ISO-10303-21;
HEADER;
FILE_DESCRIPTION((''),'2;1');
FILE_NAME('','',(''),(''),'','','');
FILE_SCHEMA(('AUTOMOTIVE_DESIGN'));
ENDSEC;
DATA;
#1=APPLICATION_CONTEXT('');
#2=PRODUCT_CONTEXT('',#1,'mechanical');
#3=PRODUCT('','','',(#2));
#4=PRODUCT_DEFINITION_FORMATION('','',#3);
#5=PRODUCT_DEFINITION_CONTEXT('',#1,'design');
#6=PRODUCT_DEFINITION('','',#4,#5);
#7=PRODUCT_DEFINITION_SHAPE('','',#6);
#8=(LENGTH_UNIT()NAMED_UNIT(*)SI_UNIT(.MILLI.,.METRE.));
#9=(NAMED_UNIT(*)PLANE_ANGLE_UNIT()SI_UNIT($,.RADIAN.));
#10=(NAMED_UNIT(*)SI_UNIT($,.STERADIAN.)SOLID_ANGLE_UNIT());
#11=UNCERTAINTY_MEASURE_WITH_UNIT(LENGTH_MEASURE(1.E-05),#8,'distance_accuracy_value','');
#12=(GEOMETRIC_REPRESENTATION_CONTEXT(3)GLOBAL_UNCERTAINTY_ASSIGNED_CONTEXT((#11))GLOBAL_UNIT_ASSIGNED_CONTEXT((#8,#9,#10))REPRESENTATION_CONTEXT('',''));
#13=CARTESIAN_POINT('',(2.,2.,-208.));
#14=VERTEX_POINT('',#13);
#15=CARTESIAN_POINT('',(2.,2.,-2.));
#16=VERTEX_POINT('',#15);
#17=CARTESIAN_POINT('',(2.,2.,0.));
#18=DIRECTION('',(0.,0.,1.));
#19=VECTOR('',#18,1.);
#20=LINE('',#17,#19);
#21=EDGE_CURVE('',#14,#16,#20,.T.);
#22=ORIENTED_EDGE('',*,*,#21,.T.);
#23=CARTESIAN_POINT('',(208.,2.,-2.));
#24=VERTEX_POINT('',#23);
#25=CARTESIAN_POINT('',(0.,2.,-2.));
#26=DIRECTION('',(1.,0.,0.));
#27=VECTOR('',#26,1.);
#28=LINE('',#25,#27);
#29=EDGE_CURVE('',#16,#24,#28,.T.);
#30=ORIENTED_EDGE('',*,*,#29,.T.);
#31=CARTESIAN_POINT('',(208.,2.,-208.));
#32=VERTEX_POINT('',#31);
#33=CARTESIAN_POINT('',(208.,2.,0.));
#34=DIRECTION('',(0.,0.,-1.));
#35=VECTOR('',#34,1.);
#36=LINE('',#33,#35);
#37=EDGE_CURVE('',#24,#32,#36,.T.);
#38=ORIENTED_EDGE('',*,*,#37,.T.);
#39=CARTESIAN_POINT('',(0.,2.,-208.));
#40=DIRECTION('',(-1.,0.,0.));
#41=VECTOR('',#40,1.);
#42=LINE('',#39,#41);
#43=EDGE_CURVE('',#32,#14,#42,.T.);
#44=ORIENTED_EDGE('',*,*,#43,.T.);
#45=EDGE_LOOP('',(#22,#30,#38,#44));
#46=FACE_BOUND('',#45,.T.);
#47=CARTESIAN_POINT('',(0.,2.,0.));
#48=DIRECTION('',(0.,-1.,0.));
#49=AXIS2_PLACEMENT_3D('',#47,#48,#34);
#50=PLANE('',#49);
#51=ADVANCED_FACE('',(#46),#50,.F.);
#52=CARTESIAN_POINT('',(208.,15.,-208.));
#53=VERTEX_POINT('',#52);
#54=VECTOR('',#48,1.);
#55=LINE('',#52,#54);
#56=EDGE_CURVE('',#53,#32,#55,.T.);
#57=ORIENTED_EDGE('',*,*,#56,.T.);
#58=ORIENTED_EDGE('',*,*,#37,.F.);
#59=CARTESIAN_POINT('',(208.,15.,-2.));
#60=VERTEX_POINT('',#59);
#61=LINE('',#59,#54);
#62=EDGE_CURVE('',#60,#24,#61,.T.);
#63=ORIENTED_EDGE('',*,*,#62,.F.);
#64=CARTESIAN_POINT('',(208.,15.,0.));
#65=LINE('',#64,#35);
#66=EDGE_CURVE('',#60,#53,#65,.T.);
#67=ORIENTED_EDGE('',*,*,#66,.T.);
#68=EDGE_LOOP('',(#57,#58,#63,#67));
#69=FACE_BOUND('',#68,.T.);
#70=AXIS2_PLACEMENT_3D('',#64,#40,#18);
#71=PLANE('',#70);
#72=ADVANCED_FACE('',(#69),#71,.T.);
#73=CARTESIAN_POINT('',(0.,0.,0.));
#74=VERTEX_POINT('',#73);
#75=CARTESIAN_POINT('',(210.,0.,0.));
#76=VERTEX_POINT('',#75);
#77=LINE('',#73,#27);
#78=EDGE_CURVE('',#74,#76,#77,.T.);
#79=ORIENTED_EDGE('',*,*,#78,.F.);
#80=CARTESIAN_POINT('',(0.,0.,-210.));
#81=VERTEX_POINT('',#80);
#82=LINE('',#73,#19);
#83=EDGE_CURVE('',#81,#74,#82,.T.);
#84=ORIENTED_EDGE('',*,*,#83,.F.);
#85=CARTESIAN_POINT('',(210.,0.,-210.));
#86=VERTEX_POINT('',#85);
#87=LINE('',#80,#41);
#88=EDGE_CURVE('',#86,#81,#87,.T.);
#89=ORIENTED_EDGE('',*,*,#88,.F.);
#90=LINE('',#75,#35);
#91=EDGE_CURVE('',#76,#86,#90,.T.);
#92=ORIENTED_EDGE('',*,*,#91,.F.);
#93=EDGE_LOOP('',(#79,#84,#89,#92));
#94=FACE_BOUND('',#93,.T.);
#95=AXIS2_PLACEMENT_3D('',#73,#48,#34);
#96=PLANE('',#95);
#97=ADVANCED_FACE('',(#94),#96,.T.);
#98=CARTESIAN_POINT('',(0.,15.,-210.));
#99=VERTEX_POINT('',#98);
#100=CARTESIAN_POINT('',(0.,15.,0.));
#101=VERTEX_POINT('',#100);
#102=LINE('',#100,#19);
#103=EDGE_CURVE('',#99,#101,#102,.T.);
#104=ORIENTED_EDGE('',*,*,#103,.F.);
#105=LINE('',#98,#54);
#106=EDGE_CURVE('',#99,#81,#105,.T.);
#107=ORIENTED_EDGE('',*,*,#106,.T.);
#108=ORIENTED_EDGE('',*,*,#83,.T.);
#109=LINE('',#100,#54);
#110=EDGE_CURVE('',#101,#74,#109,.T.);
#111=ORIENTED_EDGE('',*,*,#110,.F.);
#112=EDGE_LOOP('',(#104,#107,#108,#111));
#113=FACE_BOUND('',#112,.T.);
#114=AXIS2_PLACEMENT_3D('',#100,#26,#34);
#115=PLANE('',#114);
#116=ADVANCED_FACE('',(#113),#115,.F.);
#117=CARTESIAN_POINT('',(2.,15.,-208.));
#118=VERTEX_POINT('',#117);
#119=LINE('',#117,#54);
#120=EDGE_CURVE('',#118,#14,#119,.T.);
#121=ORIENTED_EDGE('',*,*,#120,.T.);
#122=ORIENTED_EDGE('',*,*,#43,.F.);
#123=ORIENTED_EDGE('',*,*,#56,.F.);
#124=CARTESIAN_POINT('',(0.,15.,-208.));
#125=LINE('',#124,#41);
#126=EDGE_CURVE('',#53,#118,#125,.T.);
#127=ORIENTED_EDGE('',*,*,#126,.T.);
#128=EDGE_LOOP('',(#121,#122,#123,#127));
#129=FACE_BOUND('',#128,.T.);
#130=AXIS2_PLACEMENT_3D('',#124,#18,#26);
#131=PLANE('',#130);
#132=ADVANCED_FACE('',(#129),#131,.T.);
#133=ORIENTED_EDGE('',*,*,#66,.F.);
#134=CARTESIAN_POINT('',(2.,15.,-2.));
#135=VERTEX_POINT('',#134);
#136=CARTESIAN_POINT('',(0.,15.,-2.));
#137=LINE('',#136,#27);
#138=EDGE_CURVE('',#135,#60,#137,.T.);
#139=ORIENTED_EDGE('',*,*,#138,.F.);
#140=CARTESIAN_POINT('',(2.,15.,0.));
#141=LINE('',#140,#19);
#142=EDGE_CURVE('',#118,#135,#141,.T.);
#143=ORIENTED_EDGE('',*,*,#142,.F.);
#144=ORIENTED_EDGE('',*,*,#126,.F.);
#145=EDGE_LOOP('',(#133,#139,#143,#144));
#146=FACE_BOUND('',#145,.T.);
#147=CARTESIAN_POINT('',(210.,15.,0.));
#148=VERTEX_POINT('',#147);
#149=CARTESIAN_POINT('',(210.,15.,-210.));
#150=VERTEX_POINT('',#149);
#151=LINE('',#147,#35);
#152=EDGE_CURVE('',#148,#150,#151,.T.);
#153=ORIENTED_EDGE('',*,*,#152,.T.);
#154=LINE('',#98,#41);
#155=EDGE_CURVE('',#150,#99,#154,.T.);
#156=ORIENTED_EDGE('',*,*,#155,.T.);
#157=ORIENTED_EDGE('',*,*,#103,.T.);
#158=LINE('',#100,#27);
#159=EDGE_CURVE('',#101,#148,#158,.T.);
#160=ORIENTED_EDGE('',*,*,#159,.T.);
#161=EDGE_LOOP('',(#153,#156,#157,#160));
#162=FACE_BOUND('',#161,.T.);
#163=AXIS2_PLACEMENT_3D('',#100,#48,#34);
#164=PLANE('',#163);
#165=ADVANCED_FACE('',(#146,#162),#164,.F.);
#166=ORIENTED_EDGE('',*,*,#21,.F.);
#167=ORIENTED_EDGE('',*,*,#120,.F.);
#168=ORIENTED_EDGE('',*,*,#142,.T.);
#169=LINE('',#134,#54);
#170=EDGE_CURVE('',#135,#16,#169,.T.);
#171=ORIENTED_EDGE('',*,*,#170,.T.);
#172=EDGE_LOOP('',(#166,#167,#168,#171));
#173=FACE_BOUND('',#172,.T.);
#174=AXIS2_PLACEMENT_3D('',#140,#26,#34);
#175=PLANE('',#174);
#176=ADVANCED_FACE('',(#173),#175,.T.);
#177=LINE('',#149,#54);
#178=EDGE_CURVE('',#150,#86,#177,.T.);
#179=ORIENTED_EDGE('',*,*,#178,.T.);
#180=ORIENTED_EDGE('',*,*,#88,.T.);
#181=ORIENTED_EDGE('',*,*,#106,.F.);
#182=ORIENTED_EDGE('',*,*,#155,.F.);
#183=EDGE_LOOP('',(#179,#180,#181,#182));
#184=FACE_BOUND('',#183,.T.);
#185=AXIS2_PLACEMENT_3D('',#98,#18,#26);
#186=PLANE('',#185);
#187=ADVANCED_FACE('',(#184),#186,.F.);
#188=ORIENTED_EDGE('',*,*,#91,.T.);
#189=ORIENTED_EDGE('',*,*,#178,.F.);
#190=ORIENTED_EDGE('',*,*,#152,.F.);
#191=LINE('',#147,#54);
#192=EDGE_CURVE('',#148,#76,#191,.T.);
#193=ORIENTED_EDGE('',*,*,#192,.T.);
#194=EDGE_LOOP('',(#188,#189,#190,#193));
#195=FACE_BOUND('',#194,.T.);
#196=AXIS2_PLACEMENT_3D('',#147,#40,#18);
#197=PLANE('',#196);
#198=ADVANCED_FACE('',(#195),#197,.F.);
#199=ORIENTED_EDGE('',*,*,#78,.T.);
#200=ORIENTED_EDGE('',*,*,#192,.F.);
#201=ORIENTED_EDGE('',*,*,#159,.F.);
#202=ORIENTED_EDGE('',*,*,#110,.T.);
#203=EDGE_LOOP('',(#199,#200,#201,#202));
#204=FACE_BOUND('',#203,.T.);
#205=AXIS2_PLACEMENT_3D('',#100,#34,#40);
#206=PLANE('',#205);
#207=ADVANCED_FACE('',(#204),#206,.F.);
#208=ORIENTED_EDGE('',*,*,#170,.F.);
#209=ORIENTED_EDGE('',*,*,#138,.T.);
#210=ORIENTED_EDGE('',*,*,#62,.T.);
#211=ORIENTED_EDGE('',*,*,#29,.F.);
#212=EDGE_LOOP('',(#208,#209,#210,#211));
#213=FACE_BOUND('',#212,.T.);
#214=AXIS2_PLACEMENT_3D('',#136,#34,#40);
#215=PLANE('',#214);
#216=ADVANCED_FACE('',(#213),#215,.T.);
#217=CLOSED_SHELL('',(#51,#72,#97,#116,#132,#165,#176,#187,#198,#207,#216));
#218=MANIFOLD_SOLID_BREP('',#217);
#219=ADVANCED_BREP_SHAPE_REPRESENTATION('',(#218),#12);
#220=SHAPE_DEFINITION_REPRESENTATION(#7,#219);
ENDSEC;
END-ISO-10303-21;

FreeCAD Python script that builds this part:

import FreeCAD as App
import Part
import Sketcher

V = App.Vector


def faces_at(feature, points):
    """Names of the faces that lie closest to the given points."""
    faces = feature.Shape.Faces
    near = lambda p: min(range(len(faces)), key=lambda i: faces[i].distToShape(Part.Vertex(*p))[0])
    return sorted({f"Face{near(p) + 1}" for p in points})


def add_polygon(sketch, points):
    """Adds a closed chain of lines whose ends are joined by coincident constraints."""
    first, n = sketch.GeometryCount, len(points)
    for a, b in zip(points, points[1:] + points[:1]):
        sketch.addGeometry(Part.LineSegment(App.Vector(*a, 0), App.Vector(*b, 0)), False)
    for i in range(n):
        sketch.addConstraint(Sketcher.Constraint("Coincident", first + i, 2, first + (i + 1) % n, 1))

doc = App.newDocument("Part")
body = doc.addObject("PartDesign::Body", "Body")

# Sketch on XZ plane
sketch1 = doc.addObject("Sketcher::SketchObject", "Sketch")
body.addObject(sketch1)
sketch1.AttachmentSupport = (doc.XZ_Plane, [""])
sketch1.MapMode = "FlatFace"
add_polygon(sketch1, [(0, -210), (0, 0), (210, 0), (210, -210)])  # lines 0-3
sketch1.addConstraint([
    Sketcher.Constraint("Vertical", 0),
    Sketcher.Constraint("Horizontal", 1),
    Sketcher.Constraint("Vertical", 2),
    Sketcher.Constraint("Horizontal", 3),
    Sketcher.Constraint("Coincident", 0, 2, -1, 1),
    Sketcher.Constraint("Equal", 3, 0),
    Sketcher.Constraint("DistanceX", 1, 1, 1, 2, 210.0),
])
pad1 = doc.addObject("PartDesign::Pad", "Pad")
body.addObject(pad1)
pad1.Profile = sketch1
pad1.Length = 15
pad1.Reversed = True
doc.recompute()

thickness = doc.addObject("PartDesign::Thickness", "Thickness")
body.addObject(thickness)
thickness.Base = (pad1, faces_at(pad1, [(105, 15, -105)]))
thickness.Value = 2
thickness.Reversed = True
thickness.Join = "Intersection"

doc.recompute()
